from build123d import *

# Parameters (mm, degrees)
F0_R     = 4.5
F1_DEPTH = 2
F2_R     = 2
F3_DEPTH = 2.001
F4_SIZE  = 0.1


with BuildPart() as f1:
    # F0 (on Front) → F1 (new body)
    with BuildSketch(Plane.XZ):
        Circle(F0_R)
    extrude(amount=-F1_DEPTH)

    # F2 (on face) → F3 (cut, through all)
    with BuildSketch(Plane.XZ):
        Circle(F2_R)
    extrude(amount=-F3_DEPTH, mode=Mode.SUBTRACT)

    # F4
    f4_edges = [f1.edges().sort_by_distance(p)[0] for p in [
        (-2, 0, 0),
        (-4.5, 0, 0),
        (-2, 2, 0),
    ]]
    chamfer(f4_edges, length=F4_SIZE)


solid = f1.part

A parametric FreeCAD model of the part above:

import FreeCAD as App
import Part
import Sketcher

V = App.Vector
Q = App.Units.Quantity


def edges_at(feature, points):
    """Names of the edges that pass closest to the given points."""
    edges = feature.Shape.Edges
    near = lambda p: min(range(len(edges)), key=lambda i: edges[i].distToShape(Part.Vertex(*p))[0])
    return sorted({f"Edge{near(p) + 1}" for p in points})

doc = App.newDocument("Part")
body = doc.addObject("PartDesign::Body", "Body")

# Sketch on XZ plane
sketch1 = body.newObject("Sketcher::SketchObject", "Sketch")
sketch1.AttachmentSupport = (doc.getObject("XZ_Plane"), [""])
sketch1.MapMode = "FlatFace"
sketch1.addGeometry(Part.Circle(V(0, 0, 0), V(0, 0, 1), 4.5), False)
sketch1.addConstraint(Sketcher.Constraint("Coincident", 0, 3, -1, 1))
sketch1.addConstraint(Sketcher.Constraint("Diameter", 0, Q("9 mm")))
pad1 = body.newObject("PartDesign::Pad", "Pad")
pad1.Profile = sketch1
pad1.Length = 2
pad1.Reversed = True

# Sketch on XZ plane
sketch2 = body.newObject("Sketcher::SketchObject", "Sketch001")
sketch2.AttachmentSupport = (doc.getObject("XZ_Plane"), [""])
sketch2.MapMode = "FlatFace"
sketch2.addGeometry(Part.Circle(V(0, 0, 0), V(0, 0, 1), 2), False)
sketch2.addConstraint(Sketcher.Constraint("Coincident", 0, 3, -1, 1))
sketch2.addConstraint(Sketcher.Constraint("Diameter", 0, Q("4 mm")))
pocket1 = body.newObject("PartDesign::Pocket", "Pocket")
pocket1.Profile = sketch2
pocket1.Type = "ThroughAll"
doc.recompute()

chamfer = body.newObject("PartDesign::Chamfer", "Chamfer")
chamfer.Base = (pocket1, edges_at(pocket1, [(-2, 0, 0), (-4.5, 0, 0), (-2, 2, 0)]))
chamfer.Size = 0.1

doc.recompute()
